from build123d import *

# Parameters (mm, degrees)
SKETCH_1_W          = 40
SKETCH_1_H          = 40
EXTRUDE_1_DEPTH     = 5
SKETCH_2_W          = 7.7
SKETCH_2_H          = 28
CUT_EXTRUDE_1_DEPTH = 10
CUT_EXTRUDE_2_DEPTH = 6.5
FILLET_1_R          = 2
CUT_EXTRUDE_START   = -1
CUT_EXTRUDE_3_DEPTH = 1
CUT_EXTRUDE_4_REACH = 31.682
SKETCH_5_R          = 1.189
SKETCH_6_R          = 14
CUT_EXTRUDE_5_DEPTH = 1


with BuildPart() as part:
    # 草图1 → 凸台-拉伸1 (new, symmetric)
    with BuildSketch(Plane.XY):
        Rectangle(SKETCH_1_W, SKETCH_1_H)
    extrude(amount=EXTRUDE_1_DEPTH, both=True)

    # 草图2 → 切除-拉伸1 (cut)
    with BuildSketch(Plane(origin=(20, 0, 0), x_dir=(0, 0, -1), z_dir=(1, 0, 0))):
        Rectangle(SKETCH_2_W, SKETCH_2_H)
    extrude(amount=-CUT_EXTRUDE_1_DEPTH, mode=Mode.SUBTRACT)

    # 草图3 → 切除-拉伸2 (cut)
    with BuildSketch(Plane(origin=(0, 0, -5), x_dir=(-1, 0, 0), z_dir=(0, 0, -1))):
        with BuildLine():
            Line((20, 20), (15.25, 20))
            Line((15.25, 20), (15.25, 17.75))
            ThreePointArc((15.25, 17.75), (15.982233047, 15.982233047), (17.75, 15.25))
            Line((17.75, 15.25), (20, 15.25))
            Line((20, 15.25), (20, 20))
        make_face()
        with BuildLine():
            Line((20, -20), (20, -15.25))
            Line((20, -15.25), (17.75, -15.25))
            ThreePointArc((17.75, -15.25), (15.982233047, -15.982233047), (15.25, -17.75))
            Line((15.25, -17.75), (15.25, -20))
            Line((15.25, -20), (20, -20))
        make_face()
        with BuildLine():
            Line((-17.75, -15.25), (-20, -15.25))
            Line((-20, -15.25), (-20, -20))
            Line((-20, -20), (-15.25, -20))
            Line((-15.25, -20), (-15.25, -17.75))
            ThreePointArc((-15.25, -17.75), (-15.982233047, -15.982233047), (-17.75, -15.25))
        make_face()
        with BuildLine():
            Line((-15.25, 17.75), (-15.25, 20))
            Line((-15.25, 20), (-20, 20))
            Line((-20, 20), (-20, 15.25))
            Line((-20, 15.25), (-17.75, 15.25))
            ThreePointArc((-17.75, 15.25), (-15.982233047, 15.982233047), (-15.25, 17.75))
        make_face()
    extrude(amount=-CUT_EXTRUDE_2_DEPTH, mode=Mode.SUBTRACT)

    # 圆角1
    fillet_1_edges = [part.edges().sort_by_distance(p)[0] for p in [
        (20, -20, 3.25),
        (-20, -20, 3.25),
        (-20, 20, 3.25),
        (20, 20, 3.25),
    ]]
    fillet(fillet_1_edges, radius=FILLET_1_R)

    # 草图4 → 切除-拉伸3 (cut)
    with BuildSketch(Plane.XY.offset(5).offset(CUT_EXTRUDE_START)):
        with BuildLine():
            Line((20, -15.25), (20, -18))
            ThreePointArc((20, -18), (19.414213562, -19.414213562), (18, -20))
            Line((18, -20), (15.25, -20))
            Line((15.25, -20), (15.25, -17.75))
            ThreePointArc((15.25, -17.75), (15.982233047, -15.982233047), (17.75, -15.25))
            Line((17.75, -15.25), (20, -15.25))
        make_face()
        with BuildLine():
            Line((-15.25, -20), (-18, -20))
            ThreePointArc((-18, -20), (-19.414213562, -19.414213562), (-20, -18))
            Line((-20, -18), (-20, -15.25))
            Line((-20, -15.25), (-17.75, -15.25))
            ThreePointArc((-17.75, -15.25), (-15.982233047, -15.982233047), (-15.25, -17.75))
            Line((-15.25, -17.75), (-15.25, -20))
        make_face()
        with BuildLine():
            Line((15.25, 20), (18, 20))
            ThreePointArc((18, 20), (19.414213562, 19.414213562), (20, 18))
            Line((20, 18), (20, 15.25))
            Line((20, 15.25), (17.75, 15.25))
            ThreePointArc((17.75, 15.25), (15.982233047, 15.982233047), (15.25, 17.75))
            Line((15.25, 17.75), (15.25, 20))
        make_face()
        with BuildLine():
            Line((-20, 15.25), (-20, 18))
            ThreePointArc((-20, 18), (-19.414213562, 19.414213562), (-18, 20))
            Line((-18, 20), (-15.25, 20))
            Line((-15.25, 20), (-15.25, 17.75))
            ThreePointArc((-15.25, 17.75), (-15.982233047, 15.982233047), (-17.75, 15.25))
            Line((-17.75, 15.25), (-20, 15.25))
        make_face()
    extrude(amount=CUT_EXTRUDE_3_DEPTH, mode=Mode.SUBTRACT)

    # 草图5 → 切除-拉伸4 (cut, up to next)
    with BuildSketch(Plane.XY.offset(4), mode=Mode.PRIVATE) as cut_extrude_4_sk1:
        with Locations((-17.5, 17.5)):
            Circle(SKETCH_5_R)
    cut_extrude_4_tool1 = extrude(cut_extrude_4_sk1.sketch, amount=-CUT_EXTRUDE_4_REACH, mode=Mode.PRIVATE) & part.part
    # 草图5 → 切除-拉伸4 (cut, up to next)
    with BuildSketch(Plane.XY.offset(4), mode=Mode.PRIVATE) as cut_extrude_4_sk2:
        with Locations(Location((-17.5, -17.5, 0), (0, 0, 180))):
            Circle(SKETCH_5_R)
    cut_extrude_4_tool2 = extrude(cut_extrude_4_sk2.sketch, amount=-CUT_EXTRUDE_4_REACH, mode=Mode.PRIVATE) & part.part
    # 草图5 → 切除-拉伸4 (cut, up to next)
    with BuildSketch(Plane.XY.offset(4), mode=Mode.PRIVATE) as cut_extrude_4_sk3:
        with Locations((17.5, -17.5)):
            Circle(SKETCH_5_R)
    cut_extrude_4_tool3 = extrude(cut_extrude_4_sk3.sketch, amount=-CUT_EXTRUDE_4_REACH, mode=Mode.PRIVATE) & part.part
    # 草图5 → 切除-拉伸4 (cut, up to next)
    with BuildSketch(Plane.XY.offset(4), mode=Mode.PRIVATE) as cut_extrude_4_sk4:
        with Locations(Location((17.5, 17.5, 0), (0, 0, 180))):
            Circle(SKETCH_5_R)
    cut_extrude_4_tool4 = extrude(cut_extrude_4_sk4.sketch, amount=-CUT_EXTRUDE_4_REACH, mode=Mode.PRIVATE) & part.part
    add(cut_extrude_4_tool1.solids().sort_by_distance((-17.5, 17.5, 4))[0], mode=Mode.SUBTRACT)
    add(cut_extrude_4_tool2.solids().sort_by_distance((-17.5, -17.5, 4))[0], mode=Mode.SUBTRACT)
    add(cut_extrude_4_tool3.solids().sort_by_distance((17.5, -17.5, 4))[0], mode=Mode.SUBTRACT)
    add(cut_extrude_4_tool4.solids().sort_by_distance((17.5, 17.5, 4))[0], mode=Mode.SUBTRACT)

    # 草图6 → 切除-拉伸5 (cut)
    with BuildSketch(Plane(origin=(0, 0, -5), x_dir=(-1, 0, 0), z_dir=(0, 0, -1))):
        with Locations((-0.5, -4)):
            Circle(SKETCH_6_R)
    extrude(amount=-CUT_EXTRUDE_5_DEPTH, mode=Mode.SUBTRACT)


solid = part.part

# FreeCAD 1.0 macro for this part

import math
import FreeCAD as App
import Part
import Sketcher
Q = App.Units.Quantity


def edges_at(feature, points):
    """Names of the edges that pass closest to the given points."""
    edges = feature.Shape.Edges
    near = lambda p: min(range(len(edges)), key=lambda i: edges[i].distToShape(Part.Vertex(*p))[0])
    return sorted({f"Edge{near(p) + 1}" for p in points})


def add_polygon(sketch, points):
    """Adds a closed chain of lines whose ends are joined by coincident constraints."""
    first, n = sketch.GeometryCount, len(points)
    for a, b in zip(points, points[1:] + points[:1]):
        sketch.addGeometry(Part.LineSegment(App.Vector(*a, 0), App.Vector(*b, 0)), False)
    for i in range(n):
        sketch.addConstraint(Sketcher.Constraint("Coincident", first + i, 2, first + (i + 1) % n, 1))

doc = App.newDocument("Part")
body = doc.addObject("PartDesign::Body", "Body")

sketch1 = doc.addObject("Sketcher::SketchObject", "Sketch")
body.addObject(sketch1)
sketch1.AttachmentSupport = (doc.XY_Plane, [""])
sketch1.MapMode = "FlatFace"
add_polygon(sketch1, [(-20, 20), (-20, -20), (20, -20), (20, 20)])
sketch1.addConstraint(Sketcher.Constraint("Vertical", 0))
sketch1.addConstraint(Sketcher.Constraint("Horizontal", 1))
sketch1.addConstraint(Sketcher.Constraint("Vertical", 2))
sketch1.addConstraint(Sketcher.Constraint("Horizontal", 3))
sketch1.addConstraint(Sketcher.Constraint("Symmetric", 0, 2, 2, 2, -1, 1))
sketch1.addConstraint(Sketcher.Constraint("Equal", 3, 0))
sketch1.addConstraint(Sketcher.Constraint("DistanceX", 1, 1, 1, 2, Q("40 mm")))
pad1 = doc.addObject("PartDesign::Pad", "Pad")
body.addObject(pad1)
pad1.Profile = sketch1
pad1.Length = 10
pad1.Midplane = True

sketch2 = doc.addObject("Sketcher::SketchObject", "Sketch001")
body.addObject(sketch2)
sketch2.AttachmentSupport = (doc.YZ_Plane, [""])
sketch2.MapMode = "FlatFace"
sketch2.AttachmentOffset = App.Placement(App.Vector(0, 0, 20), App.Rotation())
add_polygon(sketch2, [(14, 3.85), (-14, 3.85), (-14, -3.85), (14, -3.85)])
sketch2.addConstraint(Sketcher.Constraint("Horizontal", 0))
sketch2.addConstraint(Sketcher.Constraint("Vertical", 1))
sketch2.addConstraint(Sketcher.Constraint("Horizontal", 2))
sketch2.addConstraint(Sketcher.Constraint("Vertical", 3))
sketch2.addConstraint(Sketcher.Constraint("Symmetric", 0, 2, 2, 2, -1, 1))
sketch2.addConstraint(Sketcher.Constraint("DistanceX", 0, 2, 0, 1, Q("28 mm")))
sketch2.addConstraint(Sketcher.Constraint("DistanceY", 1, 2, 1, 1, Q("7.7 mm")))
pocket1 = doc.addObject("PartDesign::Pocket", "Pocket")
body.addObject(pocket1)
pocket1.Profile = sketch2
pocket1.Length = 10

sketch3 = doc.addObject("Sketcher::SketchObject", "Sketch002")
body.addObject(sketch3)
sketch3.AttachmentSupport = (doc.XY_Plane, [""])
sketch3.MapMode = "FlatFace"
sketch3.AttachmentOffset = App.Placement(App.Vector(0, 0, -5), App.Rotation())
sketch3.addGeometry(Part.LineSegment(App.Vector(-20, 20, 0), App.Vector(-15.25, 20, 0)), False)
sketch3.addGeometry(Part.LineSegment(App.Vector(-15.25, 20, 0), App.Vector(-15.25, 17.75, 0)), False)
sketch3.addGeometry(Part.ArcOfCircle(Part.Circle(App.Vector(-17.75, 17.75, 0), App.Vector(0, 0, 1), 2.5), math.radians(-90), math.radians(0)), False)
sketch3.addGeometry(Part.LineSegment(App.Vector(-17.75, 15.25, 0), App.Vector(-20, 15.25, 0)), False)
sketch3.addGeometry(Part.LineSegment(App.Vector(-20, 15.25, 0), App.Vector(-20, 20, 0)), False)
sketch3.addGeometry(Part.LineSegment(App.Vector(-20, -20, 0), App.Vector(-20, -15.25, 0)), False)
sketch3.addGeometry(Part.LineSegment(App.Vector(-20, -15.25, 0), App.Vector(-17.75, -15.25, 0)), False)
sketch3.addGeometry(Part.ArcOfCircle(Part.Circle(App.Vector(-17.75, -17.75, 0), App.Vector(0, 0, 1), 2.5), math.radians(0), math.radians(90)), False)
sketch3.addGeometry(Part.LineSegment(App.Vector(-15.25, -17.75, 0), App.Vector(-15.25, -20, 0)), False)
sketch3.addGeometry(Part.LineSegment(App.Vector(-15.25, -20, 0), App.Vector(-20, -20, 0)), False)
sketch3.addGeometry(Part.LineSegment(App.Vector(17.75, -15.25, 0), App.Vector(20, -15.25, 0)), False)
sketch3.addGeometry(Part.LineSegment(App.Vector(20, -15.25, 0), App.Vector(20, -20, 0)), False)
sketch3.addGeometry(Part.LineSegment(App.Vector(20, -20, 0), App.Vector(15.25, -20, 0)), False)
sketch3.addGeometry(Part.LineSegment(App.Vector(15.25, -20, 0), App.Vector(15.25, -17.75, 0)), False)
sketch3.addGeometry(Part.ArcOfCircle(Part.Circle(App.Vector(17.75, -17.75, 0), App.Vector(0, 0, 1), 2.5), math.radians(90), math.radians(180)), False)
sketch3.addGeometry(Part.LineSegment(App.Vector(15.25, 17.75, 0), App.Vector(15.25, 20, 0)), False)
sketch3.addGeometry(Part.LineSegment(App.Vector(15.25, 20, 0), App.Vector(20, 20, 0)), False)
sketch3.addGeometry(Part.LineSegment(App.Vector(20, 20, 0), App.Vector(20, 15.25, 0)), False)
sketch3.addGeometry(Part.LineSegment(App.Vector(20, 15.25, 0), App.Vector(17.75, 15.25, 0)), False)
sketch3.addGeometry(Part.ArcOfCircle(Part.Circle(App.Vector(17.75, 17.75, 0), App.Vector(0, 0, 1), 2.5), math.radians(180), math.radians(270)), False)
sketch3.addConstraint(Sketcher.Constraint("Coincident", 0, 2, 1, 1))
sketch3.addConstraint(Sketcher.Constraint("Tangent", 1, 2, 2, 2))
sketch3.addConstraint(Sketcher.Constraint("Tangent", 2, 1, 3, 1))
sketch3.addConstraint(Sketcher.Constraint("Coincident", 3, 2, 4, 1))
sketch3.addConstraint(Sketcher.Constraint("Coincident", 4, 2, 0, 1))
sketch3.addConstraint(Sketcher.Constraint("Coincident", 5, 2, 6, 1))
sketch3.addConstraint(Sketcher.Constraint("Tangent", 6, 2, 7, 2))
sketch3.addConstraint(Sketcher.Constraint("Tangent", 7, 1, 8, 1))
sketch3.addConstraint(Sketcher.Constraint("Coincident", 8, 2, 9, 1))
sketch3.addConstraint(Sketcher.Constraint("Coincident", 9, 2, 5, 1))
sketch3.addConstraint(Sketcher.Constraint("Coincident", 10, 2, 11, 1))
sketch3.addConstraint(Sketcher.Constraint("Coincident", 11, 2, 12, 1))
sketch3.addConstraint(Sketcher.Constraint("Coincident", 12, 2, 13, 1))
sketch3.addConstraint(Sketcher.Constraint("Tangent", 13, 2, 14, 2))
sketch3.addConstraint(Sketcher.Constraint("Tangent", 14, 1, 10, 1))
sketch3.addConstraint(Sketcher.Constraint("Coincident", 15, 2, 16, 1))
sketch3.addConstraint(Sketcher.Constraint("Coincident", 16, 2, 17, 1))
sketch3.addConstraint(Sketcher.Constraint("Coincident", 17, 2, 18, 1))
sketch3.addConstraint(Sketcher.Constraint("Tangent", 18, 2, 19, 2))
sketch3.addConstraint(Sketcher.Constraint("Tangent", 19, 1, 15, 1))
sketch3.addConstraint(Sketcher.Constraint("Horizontal", 0))
sketch3.addConstraint(Sketcher.Constraint("Vertical", 1))
sketch3.addConstraint(Sketcher.Constraint("Horizontal", 3))
sketch3.addConstraint(Sketcher.Constraint("Vertical", 4))
sketch3.addConstraint(Sketcher.Constraint("Vertical", 5))
sketch3.addConstraint(Sketcher.Constraint("Horizontal", 6))
sketch3.addConstraint(Sketcher.Constraint("Vertical", 8))
sketch3.addConstraint(Sketcher.Constraint("Horizontal", 9))
sketch3.addConstraint(Sketcher.Constraint("Horizontal", 10))
sketch3.addConstraint(Sketcher.Constraint("Vertical", 11))
sketch3.addConstraint(Sketcher.Constraint("Horizontal", 12))
sketch3.addConstraint(Sketcher.Constraint("Vertical", 13))
sketch3.addConstraint(Sketcher.Constraint("Vertical", 15))
sketch3.addConstraint(Sketcher.Constraint("Horizontal", 16))
sketch3.addConstraint(Sketcher.Constraint("Vertical", 17))
sketch3.addConstraint(Sketcher.Constraint("Horizontal", 18))
sketch3.addConstraint(Sketcher.Constraint("Equal", 2, 7))
sketch3.addConstraint(Sketcher.Constraint("Equal", 7, 14))
sketch3.addConstraint(Sketcher.Constraint("Equal", 14, 19))
sketch3.addConstraint(Sketcher.Constraint("Symmetric", 2, 3, 14, 3, -1, 1))
sketch3.addConstraint(Sketcher.Constraint("Symmetric", 7, 3, 19, 3, -1, 1))
sketch3.addConstraint(Sketcher.Constraint("Symmetric", 4, 2, 11, 2, -1, 1))
sketch3.addConstraint(Sketcher.Constraint("Symmetric", 9, 2, 16, 2, -1, 1))
sketch3.addConstraint(Sketcher.Constraint("Symmetric", 7, 3, 14, 3, -2))
sketch3.addConstraint(Sketcher.Constraint("Symmetric", 9, 2, 11, 2, -2))
sketch3.addConstraint(Sketcher.Constraint("Equal", 18, 1))
sketch3.addConstraint(Sketcher.Constraint("Radius", 2, Q("2.5 mm")))
sketch3.addConstraint(Sketcher.Constraint("DistanceY", -1, 1, 0, 2, Q("20 mm")))
sketch3.addConstraint(Sketcher.Constraint("DistanceX", 3, 2, -1, 1, Q("20 mm")))
sketch3.addConstraint(Sketcher.Constraint("DistanceX", 0, 2, 19, 3, Q("33 mm")))
pocket2 = doc.addObject("PartDesign::Pocket", "Pocket001")
body.addObject(pocket2)
pocket2.Profile = sketch3
pocket2.Length = 6.5
pocket2.Reversed = True
doc.recompute()

fillet = doc.addObject("PartDesign::Fillet", "Fillet")
body.addObject(fillet)
fillet.Base = (pocket2, edges_at(pocket2, [
    (20, -20, 3.25),
    (-20, -20, 3.25),
    (-20, 20, 3.25),
    (20, 20, 3.25),
]))
fillet.Radius = 2

sketch4 = doc.addObject("Sketcher::SketchObject", "Sketch003")
body.addObject(sketch4)
sketch4.AttachmentSupport = (doc.XY_Plane, [""])
sketch4.MapMode = "FlatFace"
sketch4.AttachmentOffset = App.Placement(App.Vector(0, 0, 4), App.Rotation())
sketch4.addGeometry(Part.LineSegment(App.Vector(20, -18, 0), App.Vector(20, -15.25, 0)), False)
sketch4.addGeometry(Part.LineSegment(App.Vector(20, -15.25, 0), App.Vector(17.75, -15.25, 0)), False)
sketch4.addGeometry(Part.ArcOfCircle(Part.Circle(App.Vector(17.75, -17.75, 0), App.Vector(0, 0, 1), 2.5), math.radians(90), math.radians(180)), False)
sketch4.addGeometry(Part.LineSegment(App.Vector(15.25, -17.75, 0), App.Vector(15.25, -20, 0)), False)
sketch4.addGeometry(Part.LineSegment(App.Vector(15.25, -20, 0), App.Vector(18, -20, 0)), False)
sketch4.addGeometry(Part.ArcOfCircle(Part.Circle(App.Vector(18, -18, 0), App.Vector(0, 0, 1), 2), math.radians(-90), math.radians(0)), False)
sketch4.addGeometry(Part.LineSegment(App.Vector(-18, -20, 0), App.Vector(-15.25, -20, 0)), False)
sketch4.addGeometry(Part.LineSegment(App.Vector(-15.25, -20, 0), App.Vector(-15.25, -17.75, 0)), False)
sketch4.addGeometry(Part.ArcOfCircle(Part.Circle(App.Vector(-17.75, -17.75, 0), App.Vector(0, 0, 1), 2.5), math.radians(0), math.radians(90)), False)
sketch4.addGeometry(Part.LineSegment(App.Vector(-17.75, -15.25, 0), App.Vector(-20, -15.25, 0)), False)
sketch4.addGeometry(Part.LineSegment(App.Vector(-20, -15.25, 0), App.Vector(-20, -18, 0)), False)
sketch4.addGeometry(Part.ArcOfCircle(Part.Circle(App.Vector(-18, -18, 0), App.Vector(0, 0, 1), 2), math.radians(-180), math.radians(-90)), False)
sketch4.addGeometry(Part.LineSegment(App.Vector(18, 20, 0), App.Vector(15.25, 20, 0)), False)
sketch4.addGeometry(Part.LineSegment(App.Vector(15.25, 20, 0), App.Vector(15.25, 17.75, 0)), False)
sketch4.addGeometry(Part.ArcOfCircle(Part.Circle(App.Vector(17.75, 17.75, 0), App.Vector(0, 0, 1), 2.5), math.radians(180), math.radians(270)), False)
sketch4.addGeometry(Part.LineSegment(App.Vector(17.75, 15.25, 0), App.Vector(20, 15.25, 0)), False)
sketch4.addGeometry(Part.LineSegment(App.Vector(20, 15.25, 0), App.Vector(20, 18, 0)), False)
sketch4.addGeometry(Part.ArcOfCircle(Part.Circle(App.Vector(18, 18, 0), App.Vector(0, 0, 1), 2), math.radians(0), math.radians(90)), False)
sketch4.addGeometry(Part.LineSegment(App.Vector(-20, 18, 0), App.Vector(-20, 15.25, 0)), False)
sketch4.addGeometry(Part.LineSegment(App.Vector(-20, 15.25, 0), App.Vector(-17.75, 15.25, 0)), False)
sketch4.addGeometry(Part.ArcOfCircle(Part.Circle(App.Vector(-17.75, 17.75, 0), App.Vector(0, 0, 1), 2.5), math.radians(-90), math.radians(0)), False)
sketch4.addGeometry(Part.LineSegment(App.Vector(-15.25, 17.75, 0), App.Vector(-15.25, 20, 0)), False)
sketch4.addGeometry(Part.LineSegment(App.Vector(-15.25, 20, 0), App.Vector(-18, 20, 0)), False)
sketch4.addGeometry(Part.ArcOfCircle(Part.Circle(App.Vector(-18, 18, 0), App.Vector(0, 0, 1), 2), math.radians(90), math.radians(180)), False)
sketch4.addConstraint(Sketcher.Constraint("Coincident", 0, 2, 1, 1))
sketch4.addConstraint(Sketcher.Constraint("Tangent", 1, 2, 2, 1))
sketch4.addConstraint(Sketcher.Constraint("Tangent", 2, 2, 3, 1))
sketch4.addConstraint(Sketcher.Constraint("Coincident", 3, 2, 4, 1))
sketch4.addConstraint(Sketcher.Constraint("Tangent", 4, 2, 5, 1))
sketch4.addConstraint(Sketcher.Constraint("Tangent", 5, 2, 0, 1))
sketch4.addConstraint(Sketcher.Constraint("Coincident", 6, 2, 7, 1))
sketch4.addConstraint(Sketcher.Constraint("Tangent", 7, 2, 8, 1))
sketch4.addConstraint(Sketcher.Constraint("Tangent", 8, 2, 9, 1))
sketch4.addConstraint(Sketcher.Constraint("Coincident", 9, 2, 10, 1))
sketch4.addConstraint(Sketcher.Constraint("Tangent", 10, 2, 11, 1))
sketch4.addConstraint(Sketcher.Constraint("Tangent", 11, 2, 6, 1))
sketch4.addConstraint(Sketcher.Constraint("Coincident", 12, 2, 13, 1))
sketch4.addConstraint(Sketcher.Constraint("Tangent", 13, 2, 14, 1))
sketch4.addConstraint(Sketcher.Constraint("Tangent", 14, 2, 15, 1))
sketch4.addConstraint(Sketcher.Constraint("Coincident", 15, 2, 16, 1))
sketch4.addConstraint(Sketcher.Constraint("Tangent", 16, 2, 17, 1))
sketch4.addConstraint(Sketcher.Constraint("Tangent", 17, 2, 12, 1))
sketch4.addConstraint(Sketcher.Constraint("Coincident", 18, 2, 19, 1))
sketch4.addConstraint(Sketcher.Constraint("Tangent", 19, 2, 20, 1))
sketch4.addConstraint(Sketcher.Constraint("Tangent", 20, 2, 21, 1))
sketch4.addConstraint(Sketcher.Constraint("Coincident", 21, 2, 22, 1))
sketch4.addConstraint(Sketcher.Constraint("Tangent", 22, 2, 23, 1))
sketch4.addConstraint(Sketcher.Constraint("Tangent", 23, 2, 18, 1))
sketch4.addConstraint(Sketcher.Constraint("Vertical", 0))
sketch4.addConstraint(Sketcher.Constraint("Horizontal", 1))
sketch4.addConstraint(Sketcher.Constraint("Vertical", 3))
sketch4.addConstraint(Sketcher.Constraint("Horizontal", 4))
sketch4.addConstraint(Sketcher.Constraint("Horizontal", 6))
sketch4.addConstraint(Sketcher.Constraint("Vertical", 7))
sketch4.addConstraint(Sketcher.Constraint("Horizontal", 9))
sketch4.addConstraint(Sketcher.Constraint("Vertical", 10))
sketch4.addConstraint(Sketcher.Constraint("Horizontal", 12))
sketch4.addConstraint(Sketcher.Constraint("Vertical", 13))
sketch4.addConstraint(Sketcher.Constraint("Horizontal", 15))
sketch4.addConstraint(Sketcher.Constraint("Vertical", 16))
sketch4.addConstraint(Sketcher.Constraint("Vertical", 18))
sketch4.addConstraint(Sketcher.Constraint("Horizontal", 19))
sketch4.addConstraint(Sketcher.Constraint("Vertical", 21))
sketch4.addConstraint(Sketcher.Constraint("Horizontal", 22))
sketch4.addConstraint(Sketcher.Constraint("Equal", 2, 8))
sketch4.addConstraint(Sketcher.Constraint("Equal", 5, 11))
sketch4.addConstraint(Sketcher.Constraint("Equal", 8, 14))
sketch4.addConstraint(Sketcher.Constraint("Equal", 11, 17))
sketch4.addConstraint(Sketcher.Constraint("Equal", 14, 20))
sketch4.addConstraint(Sketcher.Constraint("Equal", 17, 23))
sketch4.addConstraint(Sketcher.Constraint("Symmetric", 8, 3, 14, 3, -1, 1))
sketch4.addConstraint(Sketcher.Constraint("Symmetric", 11, 3, 17, 3, -1, 1))
sketch4.addConstraint(Sketcher.Constraint("Symmetric", 2, 3, 20, 3, -1, 1))
sketch4.addConstraint(Sketcher.Constraint("Symmetric", 5, 3, 23, 3, -1, 1))
sketch4.addConstraint(Sketcher.Constraint("Symmetric", 2, 3, 8, 3, -2))
sketch4.addConstraint(Sketcher.Constraint("Symmetric", 5, 3, 11, 3, -2))
sketch4.addConstraint(Sketcher.Constraint("Equal", 22, 0))
sketch4.addConstraint(Sketcher.Constraint("Radius", 5, Q("2 mm")))
sketch4.addConstraint(Sketcher.Constraint("Radius", 2, Q("2.5 mm")))
sketch4.addConstraint(Sketcher.Constraint("DistanceX", -1, 1, 5, 3, Q("18 mm")))
sketch4.addConstraint(Sketcher.Constraint("DistanceY", 5, 3, -1, 1, Q("18 mm")))
sketch4.addConstraint(Sketcher.Constraint("DistanceY", 0, 2, 14, 3, Q("33 mm")))
pocket3 = doc.addObject("PartDesign::Pocket", "Pocket002")
body.addObject(pocket3)
pocket3.Profile = sketch4
pocket3.Length = 1
pocket3.Reversed = True

sketch5 = doc.addObject("Sketcher::SketchObject", "Sketch004")
body.addObject(sketch5)
sketch5.AttachmentSupport = (doc.XY_Plane, [""])
sketch5.MapMode = "FlatFace"
sketch5.AttachmentOffset = App.Placement(App.Vector(0, 0, 4), App.Rotation())
sketch5.addGeometry(Part.Circle(App.Vector(-17.5, 17.5, 0), App.Vector(0, 0, 1), 1.189), False)
sketch5.addConstraint(Sketcher.Constraint("Diameter", 0, Q("2.378 mm")))
sketch5.addConstraint(Sketcher.Constraint("DistanceX", 0, 3, -1, 1, Q("17.5 mm")))
sketch5.addConstraint(Sketcher.Constraint("DistanceY", -1, 1, 0, 3, Q("17.5 mm")))
pocket4 = doc.addObject("PartDesign::Pocket", "Pocket003")
body.addObject(pocket4)
pocket4.Profile = sketch5
pocket4.Type = "UpToFirst"

sketch6 = doc.addObject("Sketcher::SketchObject", "Sketch005")
body.addObject(sketch6)
sketch6.AttachmentSupport = (doc.XY_Plane, [""])
sketch6.MapMode = "FlatFace"
sketch6.AttachmentOffset = App.Placement(App.Vector(0, 0, 4), App.Rotation())
sketch6.addGeometry(Part.Circle(App.Vector(-17.5, -17.5, 0), App.Vector(0, 0, 1), 1.189), False)
sketch6.addConstraint(Sketcher.Constraint("Diameter", 0, Q("2.378 mm")))
sketch6.addConstraint(Sketcher.Constraint("DistanceX", 0, 3, -1, 1, Q("17.5 mm")))
sketch6.addConstraint(Sketcher.Constraint("DistanceY", 0, 3, -1, 1, Q("17.5 mm")))
pocket5 = doc.addObject("PartDesign::Pocket", "Pocket004")
body.addObject(pocket5)
pocket5.Profile = sketch6
pocket5.Type = "UpToFirst"

sketch7 = doc.addObject("Sketcher::SketchObject", "Sketch006")
body.addObject(sketch7)
sketch7.AttachmentSupport = (doc.XY_Plane, [""])
sketch7.MapMode = "FlatFace"
sketch7.AttachmentOffset = App.Placement(App.Vector(0, 0, 4), App.Rotation())
sketch7.addGeometry(Part.Circle(App.Vector(17.5, -17.5, 0), App.Vector(0, 0, 1), 1.189), False)
sketch7.addConstraint(Sketcher.Constraint("Diameter", 0, Q("2.378 mm")))
sketch7.addConstraint(Sketcher.Constraint("DistanceX", -1, 1, 0, 3, Q("17.5 mm")))
sketch7.addConstraint(Sketcher.Constraint("DistanceY", 0, 3, -1, 1, Q("17.5 mm")))
pocket6 = doc.addObject("PartDesign::Pocket", "Pocket005")
body.addObject(pocket6)
pocket6.Profile = sketch7
pocket6.Type = "UpToFirst"

sketch8 = doc.addObject("Sketcher::SketchObject", "Sketch007")
body.addObject(sketch8)
sketch8.AttachmentSupport = (doc.XY_Plane, [""])
sketch8.MapMode = "FlatFace"
sketch8.AttachmentOffset = App.Placement(App.Vector(0, 0, 4), App.Rotation())
sketch8.addGeometry(Part.Circle(App.Vector(17.5, 17.5, 0), App.Vector(0, 0, 1), 1.189), False)
sketch8.addConstraint(Sketcher.Constraint("Diameter", 0, Q("2.378 mm")))
sketch8.addConstraint(Sketcher.Constraint("DistanceX", -1, 1, 0, 3, Q("17.5 mm")))
sketch8.addConstraint(Sketcher.Constraint("DistanceY", -1, 1, 0, 3, Q("17.5 mm")))
pocket7 = doc.addObject("PartDesign::Pocket", "Pocket006")
body.addObject(pocket7)
pocket7.Profile = sketch8
pocket7.Type = "UpToFirst"

sketch9 = doc.addObject("Sketcher::SketchObject", "Sketch008")
body.addObject(sketch9)
sketch9.AttachmentSupport = (doc.XY_Plane, [""])
sketch9.MapMode = "FlatFace"
sketch9.AttachmentOffset = App.Placement(App.Vector(0, 0, -5), App.Rotation())
sketch9.addGeometry(Part.Circle(App.Vector(0.5, -4, 0), App.Vector(0, 0, 1), 14), False)
sketch9.addConstraint(Sketcher.Constraint("Diameter", 0, Q("28 mm")))
sketch9.addConstraint(Sketcher.Constraint("DistanceY", 0, 3, -1, 1, Q("4 mm")))
sketch9.addConstraint(Sketcher.Constraint("DistanceX", -1, 1, 0, 3, Q("0.5 mm")))
pocket8 = doc.addObject("PartDesign::Pocket", "Pocket007")
body.addObject(pocket8)
pocket8.Profile = sketch9
pocket8.Length = 1
pocket8.Reversed = True

doc.recompute()
